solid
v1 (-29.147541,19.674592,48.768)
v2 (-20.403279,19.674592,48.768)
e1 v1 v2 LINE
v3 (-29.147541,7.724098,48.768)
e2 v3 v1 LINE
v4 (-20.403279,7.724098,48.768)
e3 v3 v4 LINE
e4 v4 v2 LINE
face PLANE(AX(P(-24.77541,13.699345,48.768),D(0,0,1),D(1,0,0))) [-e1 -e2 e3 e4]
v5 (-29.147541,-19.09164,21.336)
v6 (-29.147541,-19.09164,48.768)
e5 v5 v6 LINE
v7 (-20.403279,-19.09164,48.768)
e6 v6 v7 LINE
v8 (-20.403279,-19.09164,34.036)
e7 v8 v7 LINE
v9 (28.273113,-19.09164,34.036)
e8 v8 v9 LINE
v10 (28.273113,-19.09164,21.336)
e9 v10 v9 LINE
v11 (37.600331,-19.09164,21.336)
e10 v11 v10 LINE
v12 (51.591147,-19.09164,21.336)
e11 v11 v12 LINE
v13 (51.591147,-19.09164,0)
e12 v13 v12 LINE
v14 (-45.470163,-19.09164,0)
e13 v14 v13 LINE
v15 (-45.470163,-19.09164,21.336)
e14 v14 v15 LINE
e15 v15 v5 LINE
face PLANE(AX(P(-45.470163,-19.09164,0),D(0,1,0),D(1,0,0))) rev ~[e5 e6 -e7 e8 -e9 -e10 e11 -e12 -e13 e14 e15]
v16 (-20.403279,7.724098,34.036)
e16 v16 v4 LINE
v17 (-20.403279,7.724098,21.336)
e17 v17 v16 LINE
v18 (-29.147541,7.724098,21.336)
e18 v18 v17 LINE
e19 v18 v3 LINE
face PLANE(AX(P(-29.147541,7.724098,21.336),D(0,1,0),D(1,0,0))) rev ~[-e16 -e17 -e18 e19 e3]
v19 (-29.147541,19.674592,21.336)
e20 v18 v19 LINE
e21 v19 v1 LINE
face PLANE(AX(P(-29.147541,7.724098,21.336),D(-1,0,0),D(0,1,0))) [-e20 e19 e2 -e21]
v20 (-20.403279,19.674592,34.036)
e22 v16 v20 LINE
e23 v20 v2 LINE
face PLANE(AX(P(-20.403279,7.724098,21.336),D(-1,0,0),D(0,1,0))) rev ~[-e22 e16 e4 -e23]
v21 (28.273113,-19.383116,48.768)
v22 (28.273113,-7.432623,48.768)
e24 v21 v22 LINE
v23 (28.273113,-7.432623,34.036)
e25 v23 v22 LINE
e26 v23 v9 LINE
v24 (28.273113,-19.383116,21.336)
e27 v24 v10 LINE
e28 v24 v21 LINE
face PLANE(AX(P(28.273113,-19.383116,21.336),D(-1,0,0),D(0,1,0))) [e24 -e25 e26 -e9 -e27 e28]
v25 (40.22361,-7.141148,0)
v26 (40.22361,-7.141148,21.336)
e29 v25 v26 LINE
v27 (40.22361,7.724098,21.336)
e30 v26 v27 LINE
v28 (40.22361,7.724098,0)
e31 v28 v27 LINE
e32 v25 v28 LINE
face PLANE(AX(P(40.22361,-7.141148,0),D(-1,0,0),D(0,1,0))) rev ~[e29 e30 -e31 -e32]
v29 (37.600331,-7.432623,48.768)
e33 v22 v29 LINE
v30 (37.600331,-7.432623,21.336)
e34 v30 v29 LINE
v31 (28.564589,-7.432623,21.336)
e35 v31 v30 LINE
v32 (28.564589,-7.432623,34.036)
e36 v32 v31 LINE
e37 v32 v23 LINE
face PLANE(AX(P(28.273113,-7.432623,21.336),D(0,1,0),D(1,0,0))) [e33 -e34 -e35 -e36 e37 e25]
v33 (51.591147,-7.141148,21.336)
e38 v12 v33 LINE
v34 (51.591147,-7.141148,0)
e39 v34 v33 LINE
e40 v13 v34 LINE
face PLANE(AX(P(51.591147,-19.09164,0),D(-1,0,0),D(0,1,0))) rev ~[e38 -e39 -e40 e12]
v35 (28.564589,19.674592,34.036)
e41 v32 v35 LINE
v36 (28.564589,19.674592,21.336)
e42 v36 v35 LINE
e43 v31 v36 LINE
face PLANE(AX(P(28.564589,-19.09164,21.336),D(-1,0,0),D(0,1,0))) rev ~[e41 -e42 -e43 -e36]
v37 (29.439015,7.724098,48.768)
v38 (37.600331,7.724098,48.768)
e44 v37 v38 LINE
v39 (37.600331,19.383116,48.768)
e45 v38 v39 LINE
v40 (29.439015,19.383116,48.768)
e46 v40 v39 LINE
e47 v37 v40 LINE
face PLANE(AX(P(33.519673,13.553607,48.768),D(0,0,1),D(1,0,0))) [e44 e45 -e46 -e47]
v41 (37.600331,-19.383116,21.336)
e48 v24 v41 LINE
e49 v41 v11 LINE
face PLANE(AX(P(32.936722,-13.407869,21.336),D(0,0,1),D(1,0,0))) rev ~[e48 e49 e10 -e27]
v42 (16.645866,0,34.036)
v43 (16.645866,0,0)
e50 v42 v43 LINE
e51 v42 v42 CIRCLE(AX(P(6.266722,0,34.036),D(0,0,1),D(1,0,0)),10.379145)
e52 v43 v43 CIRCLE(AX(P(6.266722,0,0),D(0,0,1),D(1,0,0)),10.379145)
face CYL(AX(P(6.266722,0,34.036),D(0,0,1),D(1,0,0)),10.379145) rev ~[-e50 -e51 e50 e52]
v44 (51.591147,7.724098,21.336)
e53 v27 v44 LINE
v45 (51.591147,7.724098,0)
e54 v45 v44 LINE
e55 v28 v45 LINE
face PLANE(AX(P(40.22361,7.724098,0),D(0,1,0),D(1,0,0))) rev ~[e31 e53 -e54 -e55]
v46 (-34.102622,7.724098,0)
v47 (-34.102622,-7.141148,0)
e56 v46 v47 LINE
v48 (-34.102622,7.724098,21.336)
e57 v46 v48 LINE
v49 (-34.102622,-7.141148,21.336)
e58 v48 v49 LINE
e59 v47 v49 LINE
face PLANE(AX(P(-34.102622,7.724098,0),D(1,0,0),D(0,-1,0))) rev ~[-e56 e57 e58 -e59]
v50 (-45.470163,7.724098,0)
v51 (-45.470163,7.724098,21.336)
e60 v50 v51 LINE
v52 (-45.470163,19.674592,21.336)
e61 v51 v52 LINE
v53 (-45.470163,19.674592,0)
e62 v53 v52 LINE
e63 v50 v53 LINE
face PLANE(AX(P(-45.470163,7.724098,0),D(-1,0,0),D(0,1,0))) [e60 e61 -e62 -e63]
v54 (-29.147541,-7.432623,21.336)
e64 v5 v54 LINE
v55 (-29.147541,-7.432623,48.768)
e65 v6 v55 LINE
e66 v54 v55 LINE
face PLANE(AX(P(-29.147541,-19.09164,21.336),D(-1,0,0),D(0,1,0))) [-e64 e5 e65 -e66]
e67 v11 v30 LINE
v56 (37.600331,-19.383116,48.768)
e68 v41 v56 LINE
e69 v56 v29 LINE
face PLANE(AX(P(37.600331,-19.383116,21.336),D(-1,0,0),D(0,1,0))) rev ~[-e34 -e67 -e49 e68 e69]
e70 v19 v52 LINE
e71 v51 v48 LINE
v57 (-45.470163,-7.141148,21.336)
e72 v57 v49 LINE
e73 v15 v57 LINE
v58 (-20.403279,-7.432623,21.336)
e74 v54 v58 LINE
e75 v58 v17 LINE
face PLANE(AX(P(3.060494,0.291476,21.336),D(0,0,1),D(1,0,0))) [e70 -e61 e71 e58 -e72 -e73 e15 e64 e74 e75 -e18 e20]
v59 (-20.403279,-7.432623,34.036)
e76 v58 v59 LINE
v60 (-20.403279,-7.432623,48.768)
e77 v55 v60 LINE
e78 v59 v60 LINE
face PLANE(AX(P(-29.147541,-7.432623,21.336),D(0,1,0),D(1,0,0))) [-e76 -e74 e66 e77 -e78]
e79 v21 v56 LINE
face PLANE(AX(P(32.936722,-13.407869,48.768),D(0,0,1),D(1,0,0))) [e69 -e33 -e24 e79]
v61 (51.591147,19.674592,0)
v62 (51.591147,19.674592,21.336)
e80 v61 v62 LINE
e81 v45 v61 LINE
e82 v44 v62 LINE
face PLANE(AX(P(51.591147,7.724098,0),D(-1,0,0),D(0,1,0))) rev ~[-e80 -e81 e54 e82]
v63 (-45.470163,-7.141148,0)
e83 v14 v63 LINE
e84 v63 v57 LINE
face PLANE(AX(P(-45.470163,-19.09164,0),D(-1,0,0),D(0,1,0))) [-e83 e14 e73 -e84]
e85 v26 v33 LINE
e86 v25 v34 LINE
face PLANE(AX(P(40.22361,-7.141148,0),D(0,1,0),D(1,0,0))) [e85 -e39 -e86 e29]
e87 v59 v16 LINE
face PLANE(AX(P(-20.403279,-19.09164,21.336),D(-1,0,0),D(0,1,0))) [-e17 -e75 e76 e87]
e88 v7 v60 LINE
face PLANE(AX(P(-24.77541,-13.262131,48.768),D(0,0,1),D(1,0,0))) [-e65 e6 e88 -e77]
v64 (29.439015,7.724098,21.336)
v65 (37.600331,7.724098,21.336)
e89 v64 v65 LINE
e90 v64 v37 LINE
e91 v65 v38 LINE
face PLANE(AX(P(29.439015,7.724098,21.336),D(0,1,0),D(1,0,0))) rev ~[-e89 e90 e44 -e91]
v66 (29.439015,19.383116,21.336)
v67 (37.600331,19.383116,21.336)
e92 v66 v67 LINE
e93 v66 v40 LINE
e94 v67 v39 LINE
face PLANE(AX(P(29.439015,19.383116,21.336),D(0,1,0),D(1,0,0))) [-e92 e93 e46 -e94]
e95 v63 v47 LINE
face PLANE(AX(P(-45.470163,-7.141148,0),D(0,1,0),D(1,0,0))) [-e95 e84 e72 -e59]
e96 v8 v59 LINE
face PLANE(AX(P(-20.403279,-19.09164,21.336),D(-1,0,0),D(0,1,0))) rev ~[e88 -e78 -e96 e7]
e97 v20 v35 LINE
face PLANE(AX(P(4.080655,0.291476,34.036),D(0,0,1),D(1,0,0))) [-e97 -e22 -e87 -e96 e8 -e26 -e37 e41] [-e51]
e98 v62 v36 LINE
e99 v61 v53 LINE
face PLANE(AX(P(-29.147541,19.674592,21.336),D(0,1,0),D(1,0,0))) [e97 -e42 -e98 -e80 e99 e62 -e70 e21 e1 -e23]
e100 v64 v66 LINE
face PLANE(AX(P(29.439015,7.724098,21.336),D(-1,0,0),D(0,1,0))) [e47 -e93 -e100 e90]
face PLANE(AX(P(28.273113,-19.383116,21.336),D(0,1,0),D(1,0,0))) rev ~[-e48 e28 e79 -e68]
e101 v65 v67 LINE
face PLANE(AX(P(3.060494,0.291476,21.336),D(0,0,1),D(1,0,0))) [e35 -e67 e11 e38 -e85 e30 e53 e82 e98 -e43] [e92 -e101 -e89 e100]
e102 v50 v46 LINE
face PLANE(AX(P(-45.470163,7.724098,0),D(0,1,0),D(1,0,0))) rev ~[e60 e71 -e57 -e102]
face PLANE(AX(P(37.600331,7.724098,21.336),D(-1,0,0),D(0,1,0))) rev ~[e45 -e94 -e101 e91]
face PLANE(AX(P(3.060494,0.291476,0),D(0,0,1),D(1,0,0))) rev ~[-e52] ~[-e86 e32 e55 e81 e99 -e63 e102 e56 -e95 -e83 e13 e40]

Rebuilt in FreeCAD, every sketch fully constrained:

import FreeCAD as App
import Part
import Sketcher
from FreeCAD import Vector
Q = App.Units.Quantity

doc = App.newDocument("Part")
body = doc.addObject("PartDesign::Body", "Body")

# Sketch on XY plane
sketch1 = body.newObject("Sketcher::SketchObject", "Sketch")
sketch1.AttachmentSupport = (doc.getObject("XY_Plane"), [""])
sketch1.MapMode = "FlatFace"
sketch1.addGeometry([
    Part.LineSegment(Vector(52, -19, 0), Vector(52, -7, 0)),  # 0
    Part.LineSegment(Vector(52, -7, 0), Vector(40, -7, 0)),  # 1
    Part.LineSegment(Vector(40, -7, 0), Vector(40, 8, 0)),  # 2
    Part.LineSegment(Vector(40, 8, 0), Vector(52, 8, 0)),  # 3
    Part.LineSegment(Vector(52, 8, 0), Vector(52, 20, 0)),  # 4
    Part.LineSegment(Vector(52, 20, 0), Vector(-45, 20, 0)),  # 5
    Part.LineSegment(Vector(-45, 20, 0), Vector(-45, 8, 0)),  # 6
    Part.LineSegment(Vector(-45, 8, 0), Vector(-34, 8, 0)),  # 7
    Part.LineSegment(Vector(-34, 8, 0), Vector(-34, -7, 0)),  # 8
    Part.LineSegment(Vector(-34, -7, 0), Vector(-45, -7, 0)),  # 9
    Part.LineSegment(Vector(-45, -7, 0), Vector(-45, -19, 0)),  # 10
    Part.LineSegment(Vector(-45, -19, 0), Vector(52, -19, 0)),  # 11
], False)
sketch1.addConstraint([
    Sketcher.Constraint("Coincident", 0, 2, 1, 1),
    Sketcher.Constraint("Coincident", 1, 2, 2, 1),
    Sketcher.Constraint("Coincident", 2, 2, 3, 1),
    Sketcher.Constraint("Coincident", 3, 2, 4, 1),
    Sketcher.Constraint("Coincident", 4, 2, 5, 1),
    Sketcher.Constraint("Coincident", 5, 2, 6, 1),
    Sketcher.Constraint("Coincident", 6, 2, 7, 1),
    Sketcher.Constraint("Coincident", 7, 2, 8, 1),
    Sketcher.Constraint("Coincident", 8, 2, 9, 1),
    Sketcher.Constraint("Coincident", 9, 2, 10, 1),
    Sketcher.Constraint("Coincident", 10, 2, 11, 1),
    Sketcher.Constraint("Coincident", 11, 2, 0, 1),
    Sketcher.Constraint("Vertical", 0),
    Sketcher.Constraint("Horizontal", 1),
    Sketcher.Constraint("Vertical", 2),
    Sketcher.Constraint("Horizontal", 3),
    Sketcher.Constraint("Vertical", 4),
    Sketcher.Constraint("Horizontal", 5),
    Sketcher.Constraint("Vertical", 6),
    Sketcher.Constraint("Horizontal", 7),
    Sketcher.Constraint("Vertical", 8),
    Sketcher.Constraint("Horizontal", 9),
    Sketcher.Constraint("Vertical", 10),
    Sketcher.Constraint("Horizontal", 11),
    Sketcher.Constraint("Horizontal", 3, 2, 6, 2),
    Sketcher.Constraint("Horizontal", 1, 2, 8, 2),
    Sketcher.Constraint("Vertical", 0, 2, 3, 2),
    Sketcher.Constraint("Vertical", 6, 2, 9, 2),
    Sketcher.Constraint("Equal", 0, 4),
    Sketcher.Constraint("DistanceX", 5, 2, 5, 1, Q("97.06131 mm")),
    Sketcher.Constraint("DistanceX", 7, 1, 7, 2, Q("11.367541 mm")),
    Sketcher.Constraint("DistanceY", 0, 1, 0, 2, Q("11.950492 mm")),
    Sketcher.Constraint("DistanceY", -1, 1, 2, 2, Q("7.724098 mm")),
    Sketcher.Constraint("DistanceX", 1, 2, 1, 1, Q("11.367537 mm")),
    Sketcher.Constraint("DistanceY", 2, 1, 2, 2, Q("14.865246 mm")),
    Sketcher.Constraint("DistanceX", -1, 1, 1, 2, Q("40.22361 mm")),
])
pad1 = body.newObject("PartDesign::Pad", "Pad")
pad1.Profile = sketch1
pad1.Length = Q("0.84 in")

# Sketch on XY plane
sketch2 = body.newObject("Sketcher::SketchObject", "Sketch001")
sketch2.AttachmentSupport = (doc.getObject("XY_Plane"), [""])
sketch2.MapMode = "FlatFace"
sketch2.AttachmentOffset = App.Placement(Vector(0, 0, 0.84 * 25.4), App.Rotation())
sketch2.addGeometry([
    Part.LineSegment(Vector(-20, 20, 0), Vector(-20, -19, 0)),
    Part.LineSegment(Vector(-20, -19, 0), Vector(29, -19, 0)),
    Part.LineSegment(Vector(29, -19, 0), Vector(29, 20, 0)),
    Part.LineSegment(Vector(29, 20, 0), Vector(-20, 20, 0)),
], False)
sketch2.addConstraint([
    Sketcher.Constraint("Coincident", 0, 2, 1, 1),
    Sketcher.Constraint("Coincident", 1, 2, 2, 1),
    Sketcher.Constraint("Coincident", 2, 2, 3, 1),
    Sketcher.Constraint("Coincident", 3, 2, 0, 1),
    Sketcher.Constraint("Vertical", 0),
    Sketcher.Constraint("Horizontal", 1),
    Sketcher.Constraint("Vertical", 2),
    Sketcher.Constraint("Horizontal", 3),
    Sketcher.Constraint("DistanceX", 1, 1, 1, 2, Q("48.967868 mm")),
    Sketcher.Constraint("DistanceY", 0, 2, 0, 1, Q("38.766231 mm")),
    Sketcher.Constraint("DistanceX", 0, 2, -1, 1, Q("20.403279 mm")),
    Sketcher.Constraint("DistanceY", 0, 2, -1, 1, Q("19.09164 mm")),
])
pad2 = body.newObject("PartDesign::Pad", "Pad001")
pad2.Profile = sketch2
pad2.Length = Q("0.5 in")

# Sketch on XY plane
sketch3 = body.newObject("Sketcher::SketchObject", "Sketch002")
sketch3.AttachmentSupport = (doc.getObject("XY_Plane"), [""])
sketch3.MapMode = "FlatFace"
sketch3.AttachmentOffset = App.Placement(Vector(0, 0, 0.84 * 25.4), App.Rotation())
sketch3.addGeometry([
    Part.LineSegment(Vector(-29, 20, 0), Vector(-29, 8, 0)),  # 0
    Part.LineSegment(Vector(-29, 8, 0), Vector(-20, 8, 0)),  # 1
    Part.LineSegment(Vector(-20, 8, 0), Vector(-20, 20, 0)),  # 2
    Part.LineSegment(Vector(-20, 20, 0), Vector(-29, 20, 0)),  # 3
    Part.LineSegment(Vector(-29, -7, 0), Vector(-29, -19, 0)),  # 4
    Part.LineSegment(Vector(-29, -19, 0), Vector(-20, -19, 0)),  # 5
    Part.LineSegment(Vector(-20, -19, 0), Vector(-20, -7, 0)),  # 6
    Part.LineSegment(Vector(-20, -7, 0), Vector(-29, -7, 0)),  # 7
    Part.LineSegment(Vector(29, 19, 0), Vector(29, 8, 0)),  # 8
    Part.LineSegment(Vector(29, 8, 0), Vector(38, 8, 0)),  # 9
    Part.LineSegment(Vector(38, 8, 0), Vector(38, 19, 0)),  # 10
    Part.LineSegment(Vector(38, 19, 0), Vector(29, 19, 0)),  # 11
    Part.LineSegment(Vector(28, -7, 0), Vector(28, -19, 0)),  # 12
    Part.LineSegment(Vector(28, -19, 0), Vector(38, -19, 0)),  # 13
    Part.LineSegment(Vector(38, -19, 0), Vector(38, -7, 0)),  # 14
    Part.LineSegment(Vector(38, -7, 0), Vector(28, -7, 0)),  # 15
], False)
sketch3.addConstraint([
    Sketcher.Constraint("Coincident", 0, 2, 1, 1),
    Sketcher.Constraint("Coincident", 1, 2, 2, 1),
    Sketcher.Constraint("Coincident", 2, 2, 3, 1),
    Sketcher.Constraint("Coincident", 3, 2, 0, 1),
    Sketcher.Constraint("Coincident", 4, 2, 5, 1),
    Sketcher.Constraint("Coincident", 5, 2, 6, 1),
    Sketcher.Constraint("Coincident", 6, 2, 7, 1),
    Sketcher.Constraint("Coincident", 7, 2, 4, 1),
    Sketcher.Constraint("Coincident", 8, 2, 9, 1),
    Sketcher.Constraint("Coincident", 9, 2, 10, 1),
    Sketcher.Constraint("Coincident", 10, 2, 11, 1),
    Sketcher.Constraint("Coincident", 11, 2, 8, 1),
    Sketcher.Constraint("Coincident", 12, 2, 13, 1),
    Sketcher.Constraint("Coincident", 13, 2, 14, 1),
    Sketcher.Constraint("Coincident", 14, 2, 15, 1),
    Sketcher.Constraint("Coincident", 15, 2, 12, 1),
    Sketcher.Constraint("Vertical", 0),
    Sketcher.Constraint("Horizontal", 1),
    Sketcher.Constraint("Vertical", 2),
    Sketcher.Constraint("Horizontal", 3),
    Sketcher.Constraint("Vertical", 4),
    Sketcher.Constraint("Horizontal", 5),
    Sketcher.Constraint("Vertical", 6),
    Sketcher.Constraint("Horizontal", 7),
    Sketcher.Constraint("Vertical", 8),
    Sketcher.Constraint("Horizontal", 9),
    Sketcher.Constraint("Vertical", 10),
    Sketcher.Constraint("Horizontal", 11),
    Sketcher.Constraint("Vertical", 12),
    Sketcher.Constraint("Horizontal", 13),
    Sketcher.Constraint("Vertical", 14),
    Sketcher.Constraint("Horizontal", 15),
    Sketcher.Constraint("Symmetric", 10, 2, 13, 2, -1),
    Sketcher.Constraint("Horizontal", 1, 2, 8, 2),
    Sketcher.Constraint("Horizontal", 7, 2, 14, 2),
    Sketcher.Constraint("Vertical", 3, 2, 4, 2),
    Sketcher.Constraint("Vertical", 2, 2, 5, 2),
    Sketcher.Constraint("Equal", 6, 8),
    Sketcher.Constraint("Equal", 2, 12),
    Sketcher.Constraint("DistanceY", -1, 1, 0, 2, Q("7.724098 mm")),
    Sketcher.Constraint("DistanceX", 1, 1, 1, 2, Q("8.744262 mm")),
    Sketcher.Constraint("DistanceX", 9, 1, 9, 2, Q("8.161316 mm")),
    Sketcher.Constraint("DistanceX", 13, 1, 13, 2, Q("9.327218 mm")),
    Sketcher.Constraint("DistanceY", 0, 2, 0, 1, Q("11.950493 mm")),
    Sketcher.Constraint("DistanceY", 4, 2, 4, 1, Q("11.659016 mm")),
    Sketcher.Constraint("DistanceX", 0, 2, -1, 1, Q("29.147541 mm")),
    Sketcher.Constraint("DistanceX", -1, 1, 9, 2, Q("37.600331 mm")),
])
pad3 = body.newObject("PartDesign::Pad", "Pad002")
pad3.Profile = sketch3
pad3.Length = Q("1.08 in")

# Sketch on XY plane
sketch4 = body.newObject("Sketcher::SketchObject", "Sketch003")
sketch4.AttachmentSupport = (doc.getObject("XY_Plane"), [""])
sketch4.MapMode = "FlatFace"
sketch4.AttachmentOffset = App.Placement(Vector(0, 0, 1.34 * 25.4), App.Rotation())
sketch4.addGeometry(Part.Circle(Vector(6, 0, 0), Vector(0, 0, 1), 10), False)
sketch4.addConstraint([
    Sketcher.Constraint("PointOnObject", 0, 3, -1),
    Sketcher.Constraint("Diameter", 0, Q("20.75829 mm")),
    Sketcher.Constraint("DistanceX", -1, 1, 0, 3, Q("6.266722 mm")),
])
pocket1 = body.newObject("PartDesign::Pocket", "Pocket")
pocket1.Profile = sketch4
pocket1.Length = Q("3 in")

doc.recompute()
